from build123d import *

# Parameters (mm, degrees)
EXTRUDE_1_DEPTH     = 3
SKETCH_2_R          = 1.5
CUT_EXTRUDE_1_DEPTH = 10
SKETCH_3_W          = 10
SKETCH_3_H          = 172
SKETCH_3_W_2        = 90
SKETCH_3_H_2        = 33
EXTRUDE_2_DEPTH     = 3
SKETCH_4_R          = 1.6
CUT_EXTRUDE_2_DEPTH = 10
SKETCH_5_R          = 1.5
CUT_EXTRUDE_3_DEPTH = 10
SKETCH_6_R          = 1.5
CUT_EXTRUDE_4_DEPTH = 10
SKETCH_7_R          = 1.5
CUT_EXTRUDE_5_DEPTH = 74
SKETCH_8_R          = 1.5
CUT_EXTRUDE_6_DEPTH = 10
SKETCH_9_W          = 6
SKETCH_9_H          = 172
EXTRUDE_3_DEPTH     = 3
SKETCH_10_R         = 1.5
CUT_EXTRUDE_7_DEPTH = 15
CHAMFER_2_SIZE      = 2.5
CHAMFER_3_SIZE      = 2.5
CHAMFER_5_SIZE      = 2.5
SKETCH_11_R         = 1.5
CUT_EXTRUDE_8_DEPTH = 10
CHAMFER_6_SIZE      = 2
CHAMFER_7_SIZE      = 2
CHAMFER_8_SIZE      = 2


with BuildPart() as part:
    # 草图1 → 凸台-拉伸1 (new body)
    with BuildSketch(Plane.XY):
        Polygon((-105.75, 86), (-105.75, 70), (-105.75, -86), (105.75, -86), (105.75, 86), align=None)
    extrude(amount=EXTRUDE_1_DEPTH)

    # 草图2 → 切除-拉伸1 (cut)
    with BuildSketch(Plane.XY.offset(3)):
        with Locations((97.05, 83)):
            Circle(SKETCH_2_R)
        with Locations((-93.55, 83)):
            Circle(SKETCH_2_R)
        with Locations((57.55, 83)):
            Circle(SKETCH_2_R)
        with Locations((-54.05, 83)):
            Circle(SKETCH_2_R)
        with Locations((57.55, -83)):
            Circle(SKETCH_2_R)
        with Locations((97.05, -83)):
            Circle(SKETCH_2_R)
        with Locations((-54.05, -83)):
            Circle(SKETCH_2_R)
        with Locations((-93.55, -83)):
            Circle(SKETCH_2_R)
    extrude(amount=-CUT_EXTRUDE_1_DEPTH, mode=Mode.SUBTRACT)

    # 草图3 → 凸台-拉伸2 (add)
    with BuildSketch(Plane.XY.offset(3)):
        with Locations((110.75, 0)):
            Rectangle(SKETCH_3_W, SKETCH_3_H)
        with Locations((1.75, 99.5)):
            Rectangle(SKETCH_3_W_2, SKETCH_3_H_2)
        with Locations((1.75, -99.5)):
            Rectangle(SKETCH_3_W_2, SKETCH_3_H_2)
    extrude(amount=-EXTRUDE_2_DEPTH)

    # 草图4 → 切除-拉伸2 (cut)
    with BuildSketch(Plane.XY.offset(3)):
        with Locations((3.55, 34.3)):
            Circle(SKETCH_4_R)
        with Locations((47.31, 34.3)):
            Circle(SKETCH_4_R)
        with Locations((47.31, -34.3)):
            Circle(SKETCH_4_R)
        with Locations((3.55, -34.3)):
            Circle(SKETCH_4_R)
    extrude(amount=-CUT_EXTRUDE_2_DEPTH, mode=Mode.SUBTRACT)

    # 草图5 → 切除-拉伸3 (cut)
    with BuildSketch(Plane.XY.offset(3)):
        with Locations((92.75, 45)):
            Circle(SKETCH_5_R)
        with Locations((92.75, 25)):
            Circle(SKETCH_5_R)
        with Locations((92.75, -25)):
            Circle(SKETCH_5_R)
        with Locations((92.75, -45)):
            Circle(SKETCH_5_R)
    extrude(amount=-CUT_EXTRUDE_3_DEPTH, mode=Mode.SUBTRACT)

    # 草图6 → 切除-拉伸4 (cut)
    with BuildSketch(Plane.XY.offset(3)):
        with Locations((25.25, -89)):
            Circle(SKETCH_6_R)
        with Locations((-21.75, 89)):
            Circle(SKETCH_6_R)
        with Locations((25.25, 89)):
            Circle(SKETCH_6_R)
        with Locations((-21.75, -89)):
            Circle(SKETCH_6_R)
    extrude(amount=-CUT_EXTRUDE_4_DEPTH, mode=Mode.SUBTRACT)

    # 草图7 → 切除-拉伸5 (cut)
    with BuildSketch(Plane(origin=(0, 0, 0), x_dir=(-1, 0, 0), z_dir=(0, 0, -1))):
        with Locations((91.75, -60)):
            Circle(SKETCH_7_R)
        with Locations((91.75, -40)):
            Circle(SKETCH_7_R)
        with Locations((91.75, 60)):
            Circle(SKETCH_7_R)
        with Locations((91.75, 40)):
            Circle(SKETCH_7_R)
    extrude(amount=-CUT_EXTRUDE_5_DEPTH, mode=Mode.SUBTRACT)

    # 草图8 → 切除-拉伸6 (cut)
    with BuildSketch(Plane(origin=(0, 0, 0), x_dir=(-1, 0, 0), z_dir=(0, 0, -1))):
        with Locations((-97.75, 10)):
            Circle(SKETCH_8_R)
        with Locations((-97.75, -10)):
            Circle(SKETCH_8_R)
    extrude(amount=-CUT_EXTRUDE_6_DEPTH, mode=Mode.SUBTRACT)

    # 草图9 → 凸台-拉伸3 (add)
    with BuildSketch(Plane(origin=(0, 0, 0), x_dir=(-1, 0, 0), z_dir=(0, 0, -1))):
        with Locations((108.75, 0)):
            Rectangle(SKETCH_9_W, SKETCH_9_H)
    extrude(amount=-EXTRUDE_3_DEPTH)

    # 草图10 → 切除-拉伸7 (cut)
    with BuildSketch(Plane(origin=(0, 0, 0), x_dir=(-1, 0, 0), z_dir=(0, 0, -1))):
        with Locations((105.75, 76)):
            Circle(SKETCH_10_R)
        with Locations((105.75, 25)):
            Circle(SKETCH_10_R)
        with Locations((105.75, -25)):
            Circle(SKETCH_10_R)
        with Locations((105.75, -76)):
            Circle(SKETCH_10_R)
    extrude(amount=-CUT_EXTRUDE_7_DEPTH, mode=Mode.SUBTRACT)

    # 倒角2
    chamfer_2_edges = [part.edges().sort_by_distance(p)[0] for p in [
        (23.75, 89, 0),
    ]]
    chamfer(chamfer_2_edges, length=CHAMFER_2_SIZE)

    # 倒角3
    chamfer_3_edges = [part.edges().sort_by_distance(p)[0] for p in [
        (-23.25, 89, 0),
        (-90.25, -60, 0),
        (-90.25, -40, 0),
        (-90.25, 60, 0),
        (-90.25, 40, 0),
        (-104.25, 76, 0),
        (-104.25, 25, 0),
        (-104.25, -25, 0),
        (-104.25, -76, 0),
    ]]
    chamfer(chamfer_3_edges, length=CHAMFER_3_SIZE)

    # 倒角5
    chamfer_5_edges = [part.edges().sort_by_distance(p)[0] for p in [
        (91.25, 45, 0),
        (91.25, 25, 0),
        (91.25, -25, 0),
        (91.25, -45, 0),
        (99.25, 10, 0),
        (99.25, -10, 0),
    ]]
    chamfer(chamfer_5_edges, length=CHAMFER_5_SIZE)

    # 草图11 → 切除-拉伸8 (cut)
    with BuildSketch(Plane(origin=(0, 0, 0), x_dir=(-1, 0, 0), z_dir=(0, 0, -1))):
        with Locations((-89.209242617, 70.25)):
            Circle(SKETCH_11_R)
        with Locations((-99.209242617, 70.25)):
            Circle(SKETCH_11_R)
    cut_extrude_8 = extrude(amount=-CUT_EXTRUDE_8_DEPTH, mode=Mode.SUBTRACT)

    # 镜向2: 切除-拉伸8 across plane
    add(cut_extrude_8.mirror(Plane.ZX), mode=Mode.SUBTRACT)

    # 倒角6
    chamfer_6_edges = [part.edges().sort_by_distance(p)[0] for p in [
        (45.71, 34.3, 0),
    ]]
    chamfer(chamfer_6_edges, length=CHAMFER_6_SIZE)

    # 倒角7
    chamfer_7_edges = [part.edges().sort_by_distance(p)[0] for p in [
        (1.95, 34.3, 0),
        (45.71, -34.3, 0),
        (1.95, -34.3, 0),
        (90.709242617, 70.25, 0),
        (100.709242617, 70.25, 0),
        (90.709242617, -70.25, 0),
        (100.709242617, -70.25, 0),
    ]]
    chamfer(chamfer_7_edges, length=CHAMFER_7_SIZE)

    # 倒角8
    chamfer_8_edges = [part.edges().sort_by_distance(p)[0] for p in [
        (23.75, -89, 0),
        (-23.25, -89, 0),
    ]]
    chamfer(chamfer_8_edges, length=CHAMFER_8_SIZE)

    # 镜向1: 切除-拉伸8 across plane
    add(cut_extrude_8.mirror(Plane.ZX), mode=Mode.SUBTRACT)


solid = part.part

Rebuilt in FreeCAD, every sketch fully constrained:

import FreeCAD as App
import Part
import Sketcher
from FreeCAD import Vector
Q = App.Units.Quantity


def edges_at(feature, points):
    """Names of the edges that pass closest to the given points."""
    edges = feature.Shape.Edges
    near = lambda p: min(range(len(edges)), key=lambda i: edges[i].distToShape(Part.Vertex(*p))[0])
    return sorted({f"Edge{near(p) + 1}" for p in points})


def add_polygon(sketch, points):
    """Adds a closed chain of lines whose ends are joined by coincident constraints."""
    first, n = sketch.GeometryCount, len(points)
    for a, b in zip(points, points[1:] + points[:1]):
        sketch.addGeometry(Part.LineSegment(App.Vector(*a, 0), App.Vector(*b, 0)), False)
    for i in range(n):
        sketch.addConstraint(Sketcher.Constraint("Coincident", first + i, 2, first + (i + 1) % n, 1))

doc = App.newDocument("Part")
body = doc.addObject("PartDesign::Body", "Body")

# Sketch on XY plane
sketch1 = body.newObject("Sketcher::SketchObject", "Sketch")
sketch1.AttachmentSupport = (doc.getObject("XY_Plane"), [""])
sketch1.MapMode = "FlatFace"
add_polygon(sketch1, [(-106, 86), (-106, -86), (106, -86), (106, 86)])  # lines 0-3
sketch1.addConstraint(Sketcher.Constraint("Vertical", 0))
sketch1.addConstraint(Sketcher.Constraint("Horizontal", 1))
sketch1.addConstraint(Sketcher.Constraint("Vertical", 2))
sketch1.addConstraint(Sketcher.Constraint("Horizontal", 3))
sketch1.addConstraint(Sketcher.Constraint("Symmetric", 0, 2, 2, 2, -1, 1))
sketch1.addConstraint(Sketcher.Constraint("DistanceY", 0, 2, 0, 1, Q("172 mm")))
sketch1.addConstraint(Sketcher.Constraint("DistanceX", 1, 1, 1, 2, Q("211.5 mm")))
pad1 = body.newObject("PartDesign::Pad", "Pad")
pad1.Profile = sketch1
pad1.Length = 3

# Sketch on XY plane
sketch2 = body.newObject("Sketcher::SketchObject", "Sketch001")
sketch2.AttachmentSupport = (doc.getObject("XY_Plane"), [""])
sketch2.MapMode = "FlatFace"
sketch2.AttachmentOffset = App.Placement(Vector(0, 0, 3), App.Rotation())
sketch2.addGeometry(Part.Circle(Vector(97, 83, 0), Vector(0, 0, 1), 1.5), False)
sketch2.addGeometry(Part.Circle(Vector(-93.5, 83, 0), Vector(0, 0, 1), 1.5), False)
sketch2.addGeometry(Part.Circle(Vector(57.5, 83, 0), Vector(0, 0, 1), 1.5), False)
sketch2.addGeometry(Part.Circle(Vector(-54, 83, 0), Vector(0, 0, 1), 1.5), False)
sketch2.addGeometry(Part.Circle(Vector(57.5, -83, 0), Vector(0, 0, 1), 1.5), False)
sketch2.addGeometry(Part.Circle(Vector(97, -83, 0), Vector(0, 0, 1), 1.5), False)
sketch2.addGeometry(Part.Circle(Vector(-54, -83, 0), Vector(0, 0, 1), 1.5), False)
sketch2.addGeometry(Part.Circle(Vector(-93.5, -83, 0), Vector(0, 0, 1), 1.5), False)
sketch2.addConstraint(Sketcher.Constraint("Equal", 0, 1))
sketch2.addConstraint(Sketcher.Constraint("Equal", 1, 2))
sketch2.addConstraint(Sketcher.Constraint("Equal", 2, 3))
sketch2.addConstraint(Sketcher.Constraint("Equal", 3, 4))
sketch2.addConstraint(Sketcher.Constraint("Equal", 4, 5))
sketch2.addConstraint(Sketcher.Constraint("Equal", 5, 6))
sketch2.addConstraint(Sketcher.Constraint("Equal", 6, 7))
sketch2.addConstraint(Sketcher.Constraint("Symmetric", 2, 3, 4, 3, -1))
sketch2.addConstraint(Sketcher.Constraint("Symmetric", 0, 3, 5, 3, -1))
sketch2.addConstraint(Sketcher.Constraint("Symmetric", 3, 3, 6, 3, -1))
sketch2.addConstraint(Sketcher.Constraint("Symmetric", 1, 3, 7, 3, -1))
sketch2.addConstraint(Sketcher.Constraint("Horizontal", 0, 3, 1, 3))
sketch2.addConstraint(Sketcher.Constraint("Horizontal", 1, 3, 2, 3))
sketch2.addConstraint(Sketcher.Constraint("Horizontal", 2, 3, 3, 3))
sketch2.addConstraint(Sketcher.Constraint("Diameter", 0, Q("3 mm")))
sketch2.addConstraint(Sketcher.Constraint("DistanceY", -1, 1, 0, 3, Q("83 mm")))
sketch2.addConstraint(Sketcher.Constraint("DistanceX", 1, 3, 0, 3, Q("190.6 mm")))
sketch2.addConstraint(Sketcher.Constraint("DistanceX", 2, 3, 0, 3, Q("39.5 mm")))
sketch2.addConstraint(Sketcher.Constraint("DistanceX", 1, 3, 3, 3, Q("39.5 mm")))
sketch2.addConstraint(Sketcher.Constraint("DistanceX", -1, 1, 0, 3, Q("97.05 mm")))
pocket1 = body.newObject("PartDesign::Pocket", "Pocket")
pocket1.Profile = sketch2
pocket1.Length = 10

# Sketch on XY plane
sketch3 = body.newObject("Sketcher::SketchObject", "Sketch002")
sketch3.AttachmentSupport = (doc.getObject("XY_Plane"), [""])
sketch3.MapMode = "FlatFace"
sketch3.AttachmentOffset = App.Placement(Vector(0, 0, 3), App.Rotation())
add_polygon(sketch3, [(106, 86), (106, -86), (116, -86), (116, 86)])  # lines 0-3
add_polygon(sketch3, [(-43, 116), (-43, 83), (47, 83), (47, 116)])  # lines 4-7
add_polygon(sketch3, [(-43, -83), (-43, -116), (47, -116), (47, -83)])  # lines 8-11
sketch3.addConstraint(Sketcher.Constraint("Vertical", 0))
sketch3.addConstraint(Sketcher.Constraint("Horizontal", 1))
sketch3.addConstraint(Sketcher.Constraint("Vertical", 2))
sketch3.addConstraint(Sketcher.Constraint("Horizontal", 3))
sketch3.addConstraint(Sketcher.Constraint("Vertical", 4))
sketch3.addConstraint(Sketcher.Constraint("Horizontal", 5))
sketch3.addConstraint(Sketcher.Constraint("Vertical", 6))
sketch3.addConstraint(Sketcher.Constraint("Horizontal", 7))
sketch3.addConstraint(Sketcher.Constraint("Vertical", 8))
sketch3.addConstraint(Sketcher.Constraint("Horizontal", 9))
sketch3.addConstraint(Sketcher.Constraint("Vertical", 10))
sketch3.addConstraint(Sketcher.Constraint("Horizontal", 11))
sketch3.addConstraint(Sketcher.Constraint("Symmetric", 7, 2, 8, 2, -1))
sketch3.addConstraint(Sketcher.Constraint("Symmetric", 5, 2, 10, 2, -1))
sketch3.addConstraint(Sketcher.Constraint("DistanceX", 1, 1, 1, 2, Q("10 mm")))
sketch3.addConstraint(Sketcher.Constraint("DistanceX", 5, 1, 5, 2, Q("90 mm")))
sketch3.addConstraint(Sketcher.Constraint("DistanceY", 0, 2, 0, 1, Q("172 mm")))
sketch3.addConstraint(Sketcher.Constraint("DistanceY", 4, 2, 4, 1, Q("33 mm")))
sketch3.addConstraint(Sketcher.Constraint("DistanceY", 0, 2, -1, 1, Q("86 mm")))
sketch3.addConstraint(Sketcher.Constraint("DistanceY", -1, 1, 4, 2, Q("83 mm")))
sketch3.addConstraint(Sketcher.Constraint("DistanceX", 4, 2, 3, 2, Q("149 mm")))
sketch3.addConstraint(Sketcher.Constraint("DistanceX", -1, 1, 0, 2, Q("105.75 mm")))
pad2 = body.newObject("PartDesign::Pad", "Pad001")
pad2.Profile = sketch3
pad2.Length = 3
pad2.Reversed = True

# Sketch on XY plane
sketch4 = body.newObject("Sketcher::SketchObject", "Sketch003")
sketch4.AttachmentSupport = (doc.getObject("XY_Plane"), [""])
sketch4.MapMode = "FlatFace"
sketch4.AttachmentOffset = App.Placement(Vector(0, 0, 3), App.Rotation())
sketch4.addGeometry(Part.Circle(Vector(3.5, 34.3, 0), Vector(0, 0, 1), 1.6), False)
sketch4.addGeometry(Part.Circle(Vector(47.3, 34.3, 0), Vector(0, 0, 1), 1.6), False)
sketch4.addGeometry(Part.Circle(Vector(47.3, -34.3, 0), Vector(0, 0, 1), 1.6), False)
sketch4.addGeometry(Part.Circle(Vector(3.5, -34.3, 0), Vector(0, 0, 1), 1.6), False)
sketch4.addConstraint(Sketcher.Constraint("Equal", 0, 1))
sketch4.addConstraint(Sketcher.Constraint("Equal", 1, 2))
sketch4.addConstraint(Sketcher.Constraint("Equal", 2, 3))
sketch4.addConstraint(Sketcher.Constraint("Symmetric", 1, 3, 2, 3, -1))
sketch4.addConstraint(Sketcher.Constraint("Symmetric", 0, 3, 3, 3, -1))
sketch4.addConstraint(Sketcher.Constraint("Horizontal", 0, 3, 1, 3))
sketch4.addConstraint(Sketcher.Constraint("Diameter", 0, Q("3.2 mm")))
sketch4.addConstraint(Sketcher.Constraint("DistanceY", -1, 1, 0, 3, Q("34.3 mm")))
sketch4.addConstraint(Sketcher.Constraint("DistanceX", -1, 1, 0, 3, Q("3.55 mm")))
sketch4.addConstraint(Sketcher.Constraint("DistanceX", -1, 1, 1, 3, Q("47.31 mm")))
pocket2 = body.newObject("PartDesign::Pocket", "Pocket001")
pocket2.Profile = sketch4
pocket2.Length = 10

# Sketch on XY plane
sketch5 = body.newObject("Sketcher::SketchObject", "Sketch004")
sketch5.AttachmentSupport = (doc.getObject("XY_Plane"), [""])
sketch5.MapMode = "FlatFace"
sketch5.AttachmentOffset = App.Placement(Vector(0, 0, 3), App.Rotation())
sketch5.addGeometry(Part.Circle(Vector(92.8, 45, 0), Vector(0, 0, 1), 1.5), False)
sketch5.addGeometry(Part.Circle(Vector(92.8, 25, 0), Vector(0, 0, 1), 1.5), False)
sketch5.addGeometry(Part.Circle(Vector(92.8, -25, 0), Vector(0, 0, 1), 1.5), False)
sketch5.addGeometry(Part.Circle(Vector(92.8, -45, 0), Vector(0, 0, 1), 1.5), False)
sketch5.addConstraint(Sketcher.Constraint("Equal", 0, 1))
sketch5.addConstraint(Sketcher.Constraint("Equal", 1, 2))
sketch5.addConstraint(Sketcher.Constraint("Equal", 2, 3))
sketch5.addConstraint(Sketcher.Constraint("Symmetric", 1, 3, 2, 3, -1))
sketch5.addConstraint(Sketcher.Constraint("Symmetric", 0, 3, 3, 3, -1))
sketch5.addConstraint(Sketcher.Constraint("Vertical", 0, 3, 1, 3))
sketch5.addConstraint(Sketcher.Constraint("Diameter", 0, Q("3 mm")))
sketch5.addConstraint(Sketcher.Constraint("DistanceY", -1, 1, 0, 3, Q("45 mm")))
sketch5.addConstraint(Sketcher.Constraint("DistanceY", -1, 1, 1, 3, Q("25 mm")))
sketch5.addConstraint(Sketcher.Constraint("DistanceX", -1, 1, 0, 3, Q("92.75 mm")))
pocket3 = body.newObject("PartDesign::Pocket", "Pocket002")
pocket3.Profile = sketch5
pocket3.Length = 10

# Sketch on XY plane
sketch6 = body.newObject("Sketcher::SketchObject", "Sketch005")
sketch6.AttachmentSupport = (doc.getObject("XY_Plane"), [""])
sketch6.MapMode = "FlatFace"
sketch6.AttachmentOffset = App.Placement(Vector(0, 0, 3), App.Rotation())
sketch6.addGeometry(Part.Circle(Vector(25.2, -89, 0), Vector(0, 0, 1), 1.5), False)
sketch6.addGeometry(Part.Circle(Vector(-21.8, 89, 0), Vector(0, 0, 1), 1.5), False)
sketch6.addGeometry(Part.Circle(Vector(25.2, 89, 0), Vector(0, 0, 1), 1.5), False)
sketch6.addGeometry(Part.Circle(Vector(-21.8, -89, 0), Vector(0, 0, 1), 1.5), False)
sketch6.addConstraint(Sketcher.Constraint("Equal", 0, 1))
sketch6.addConstraint(Sketcher.Constraint("Equal", 1, 2))
sketch6.addConstraint(Sketcher.Constraint("Equal", 2, 3))
sketch6.addConstraint(Sketcher.Constraint("Symmetric", 0, 3, 2, 3, -1))
sketch6.addConstraint(Sketcher.Constraint("Symmetric", 1, 3, 3, 3, -1))
sketch6.addConstraint(Sketcher.Constraint("Horizontal", 1, 3, 2, 3))
sketch6.addConstraint(Sketcher.Constraint("Diameter", 0, Q("3 mm")))
sketch6.addConstraint(Sketcher.Constraint("DistanceY", 0, 3, -1, 1, Q("89 mm")))
sketch6.addConstraint(Sketcher.Constraint("DistanceX", 1, 3, 0, 3, Q("47 mm")))
sketch6.addConstraint(Sketcher.Constraint("DistanceX", -1, 1, 0, 3, Q("25.25 mm")))
pocket4 = body.newObject("PartDesign::Pocket", "Pocket003")
pocket4.Profile = sketch6
pocket4.Length = 10

# Sketch on XY plane
sketch7 = body.newObject("Sketcher::SketchObject", "Sketch006")
sketch7.AttachmentSupport = (doc.getObject("XY_Plane"), [""])
sketch7.MapMode = "FlatFace"
sketch7.addGeometry(Part.Circle(Vector(-91.8, -60, 0), Vector(0, 0, 1), 1.5), False)
sketch7.addGeometry(Part.Circle(Vector(-91.8, -40, 0), Vector(0, 0, 1), 1.5), False)
sketch7.addGeometry(Part.Circle(Vector(-91.8, 60, 0), Vector(0, 0, 1), 1.5), False)
sketch7.addGeometry(Part.Circle(Vector(-91.8, 40, 0), Vector(0, 0, 1), 1.5), False)
sketch7.addConstraint(Sketcher.Constraint("Equal", 0, 1))
sketch7.addConstraint(Sketcher.Constraint("Equal", 1, 2))
sketch7.addConstraint(Sketcher.Constraint("Equal", 2, 3))
sketch7.addConstraint(Sketcher.Constraint("Symmetric", 0, 3, 2, 3, -1))
sketch7.addConstraint(Sketcher.Constraint("Symmetric", 1, 3, 3, 3, -1))
sketch7.addConstraint(Sketcher.Constraint("Vertical", 0, 3, 1, 3))
sketch7.addConstraint(Sketcher.Constraint("Diameter", 0, Q("3 mm")))
sketch7.addConstraint(Sketcher.Constraint("DistanceY", 0, 3, -1, 1, Q("60 mm")))
sketch7.addConstraint(Sketcher.Constraint("DistanceY", 1, 3, -1, 1, Q("40 mm")))
sketch7.addConstraint(Sketcher.Constraint("DistanceX", 0, 3, -1, 1, Q("91.75 mm")))
pocket5 = body.newObject("PartDesign::Pocket", "Pocket004")
pocket5.Profile = sketch7
pocket5.Length = 74
pocket5.Reversed = True

# Sketch on XY plane
sketch8 = body.newObject("Sketcher::SketchObject", "Sketch007")
sketch8.AttachmentSupport = (doc.getObject("XY_Plane"), [""])
sketch8.MapMode = "FlatFace"
sketch8.addGeometry(Part.Circle(Vector(97.8, 10, 0), Vector(0, 0, 1), 1.5), False)
sketch8.addGeometry(Part.Circle(Vector(97.8, -10, 0), Vector(0, 0, 1), 1.5), False)
sketch8.addConstraint(Sketcher.Constraint("Equal", 0, 1))
sketch8.addConstraint(Sketcher.Constraint("Symmetric", 0, 3, 1, 3, -1))
sketch8.addConstraint(Sketcher.Constraint("Diameter", 0, Q("3 mm")))
sketch8.addConstraint(Sketcher.Constraint("DistanceY", -1, 1, 0, 3, Q("10 mm")))
sketch8.addConstraint(Sketcher.Constraint("DistanceX", -1, 1, 0, 3, Q("97.75 mm")))
pocket6 = body.newObject("PartDesign::Pocket", "Pocket005")
pocket6.Profile = sketch8
pocket6.Length = 10
pocket6.Reversed = True

# Sketch on XY plane
sketch9 = body.newObject("Sketcher::SketchObject", "Sketch008")
sketch9.AttachmentSupport = (doc.getObject("XY_Plane"), [""])
sketch9.MapMode = "FlatFace"
add_polygon(sketch9, [(-106, 86), (-106, -86), (-112, -86), (-112, 86)])  # lines 0-3
sketch9.addConstraint(Sketcher.Constraint("Vertical", 0))
sketch9.addConstraint(Sketcher.Constraint("Horizontal", 1))
sketch9.addConstraint(Sketcher.Constraint("Vertical", 2))
sketch9.addConstraint(Sketcher.Constraint("Horizontal", 3))
sketch9.addConstraint(Sketcher.Constraint("DistanceX", 1, 2, 1, 1, Q("6 mm")))
sketch9.addConstraint(Sketcher.Constraint("DistanceY", 0, 2, 0, 1, Q("172 mm")))
sketch9.addConstraint(Sketcher.Constraint("DistanceY", 0, 2, -1, 1, Q("86 mm")))
sketch9.addConstraint(Sketcher.Constraint("DistanceX", 0, 2, -1, 1, Q("105.75 mm")))
pad3 = body.newObject("PartDesign::Pad", "Pad002")
pad3.Profile = sketch9
pad3.Length = 3

# Sketch on XY plane
sketch10 = body.newObject("Sketcher::SketchObject", "Sketch009")
sketch10.AttachmentSupport = (doc.getObject("XY_Plane"), [""])
sketch10.MapMode = "FlatFace"
sketch10.addGeometry(Part.Circle(Vector(-105.8, 76, 0), Vector(0, 0, 1), 1.5), False)
sketch10.addGeometry(Part.Circle(Vector(-105.8, 25, 0), Vector(0, 0, 1), 1.5), False)
sketch10.addGeometry(Part.Circle(Vector(-105.8, -25, 0), Vector(0, 0, 1), 1.5), False)
sketch10.addGeometry(Part.Circle(Vector(-105.8, -76, 0), Vector(0, 0, 1), 1.5), False)
sketch10.addConstraint(Sketcher.Constraint("Equal", 0, 1))
sketch10.addConstraint(Sketcher.Constraint("Equal", 1, 2))
sketch10.addConstraint(Sketcher.Constraint("Equal", 2, 3))
sketch10.addConstraint(Sketcher.Constraint("Symmetric", 1, 3, 2, 3, -1))
sketch10.addConstraint(Sketcher.Constraint("Symmetric", 0, 3, 3, 3, -1))
sketch10.addConstraint(Sketcher.Constraint("Vertical", 0, 3, 1, 3))
sketch10.addConstraint(Sketcher.Constraint("Diameter", 0, Q("3 mm")))
sketch10.addConstraint(Sketcher.Constraint("DistanceY", -1, 1, 0, 3, Q("76 mm")))
sketch10.addConstraint(Sketcher.Constraint("DistanceY", -1, 1, 1, 3, Q("25 mm")))
sketch10.addConstraint(Sketcher.Constraint("DistanceX", 0, 3, -1, 1, Q("105.75 mm")))
pocket7 = body.newObject("PartDesign::Pocket", "Pocket006")
pocket7.Profile = sketch10
pocket7.Length = 15
pocket7.Reversed = True
doc.recompute()

chamfer = body.newObject("PartDesign::Chamfer", "Chamfer")
chamfer.Base = (pocket7, edges_at(pocket7, [(23.75, 89, 0)]))
chamfer.Size = 2.5
doc.recompute()

chamfer2 = body.newObject("PartDesign::Chamfer", "Chamfer001")
chamfer2.Base = (chamfer, edges_at(chamfer, [
    (-23.25, 89, 0),
    (-90.25, -60, 0),
    (-90.25, -40, 0),
    (-90.25, 60, 0),
    (-90.25, 40, 0),
    (-104.25, 76, 0),
    (-104.25, 25, 0),
    (-104.25, -25, 0),
    (-104.25, -76, 0),
]))
chamfer2.Size = 2.5
doc.recompute()

chamfer3 = body.newObject("PartDesign::Chamfer", "Chamfer002")
chamfer3.Base = (chamfer2, edges_at(chamfer2, [
    (91.25, 45, 0),
    (91.25, 25, 0),
    (91.25, -25, 0),
    (91.25, -45, 0),
    (99.25, 10, 0),
    (99.25, -10, 0),
]))
chamfer3.Size = 2.5

# Sketch on XY plane
sketch11 = body.newObject("Sketcher::SketchObject", "Sketch010")
sketch11.AttachmentSupport = (doc.getObject("XY_Plane"), [""])
sketch11.MapMode = "FlatFace"
sketch11.addGeometry(Part.Circle(Vector(89.2, 70.2, 0), Vector(0, 0, 1), 1.5), False)
sketch11.addGeometry(Part.Circle(Vector(99.2, 70.2, 0), Vector(0, 0, 1), 1.5), False)
sketch11.addConstraint(Sketcher.Constraint("Equal", 0, 1))
sketch11.addConstraint(Sketcher.Constraint("Horizontal", 0, 3, 1, 3))
sketch11.addConstraint(Sketcher.Constraint("Diameter", 0, Q("3 mm")))
sketch11.addConstraint(Sketcher.Constraint("DistanceX", 0, 3, 1, 3, Q("10 mm")))
sketch11.addConstraint(Sketcher.Constraint("DistanceY", -1, 1, 0, 3, Q("70.25 mm")))
sketch11.addConstraint(Sketcher.Constraint("DistanceX", -1, 1, 0, 3, Q("89.209243 mm")))
pocket8 = body.newObject("PartDesign::Pocket", "Pocket007")
pocket8.Profile = sketch11
pocket8.Length = 10
pocket8.Reversed = True
doc.recompute()

mirrored = body.newObject("PartDesign::Mirrored", "Mirrored")
mirrored.Originals = [pocket8]
mirrored.MirrorPlane = (doc.getObject("XZ_Plane"), [""])
body.Tip = mirrored
doc.recompute()

chamfer4 = body.newObject("PartDesign::Chamfer", "Chamfer003")
chamfer4.Base = (mirrored, edges_at(mirrored, [(45.71, 34.3, 0)]))
chamfer4.Size = 2
doc.recompute()

chamfer5 = body.newObject("PartDesign::Chamfer", "Chamfer004")
chamfer5.Base = (chamfer4, edges_at(chamfer4, [
    (1.95, 34.3, 0),
    (45.71, -34.3, 0),
    (1.95, -34.3, 0),
    (90.709, 70.25, 0),
    (100.709, 70.25, 0),
    (90.709, -70.25, 0),
    (100.709, -70.25, 0),
]))
chamfer5.Size = 2
doc.recompute()

chamfer6 = body.newObject("PartDesign::Chamfer", "Chamfer005")
chamfer6.Base = (chamfer5, edges_at(chamfer5, [(23.75, -89, 0), (-23.25, -89, 0)]))
chamfer6.Size = 2
doc.recompute()

mirrored2 = body.newObject("PartDesign::Mirrored", "Mirrored001")
mirrored2.Originals = [pocket8]
mirrored2.MirrorPlane = (doc.getObject("XZ_Plane"), [""])
body.Tip = mirrored2

doc.recompute()
